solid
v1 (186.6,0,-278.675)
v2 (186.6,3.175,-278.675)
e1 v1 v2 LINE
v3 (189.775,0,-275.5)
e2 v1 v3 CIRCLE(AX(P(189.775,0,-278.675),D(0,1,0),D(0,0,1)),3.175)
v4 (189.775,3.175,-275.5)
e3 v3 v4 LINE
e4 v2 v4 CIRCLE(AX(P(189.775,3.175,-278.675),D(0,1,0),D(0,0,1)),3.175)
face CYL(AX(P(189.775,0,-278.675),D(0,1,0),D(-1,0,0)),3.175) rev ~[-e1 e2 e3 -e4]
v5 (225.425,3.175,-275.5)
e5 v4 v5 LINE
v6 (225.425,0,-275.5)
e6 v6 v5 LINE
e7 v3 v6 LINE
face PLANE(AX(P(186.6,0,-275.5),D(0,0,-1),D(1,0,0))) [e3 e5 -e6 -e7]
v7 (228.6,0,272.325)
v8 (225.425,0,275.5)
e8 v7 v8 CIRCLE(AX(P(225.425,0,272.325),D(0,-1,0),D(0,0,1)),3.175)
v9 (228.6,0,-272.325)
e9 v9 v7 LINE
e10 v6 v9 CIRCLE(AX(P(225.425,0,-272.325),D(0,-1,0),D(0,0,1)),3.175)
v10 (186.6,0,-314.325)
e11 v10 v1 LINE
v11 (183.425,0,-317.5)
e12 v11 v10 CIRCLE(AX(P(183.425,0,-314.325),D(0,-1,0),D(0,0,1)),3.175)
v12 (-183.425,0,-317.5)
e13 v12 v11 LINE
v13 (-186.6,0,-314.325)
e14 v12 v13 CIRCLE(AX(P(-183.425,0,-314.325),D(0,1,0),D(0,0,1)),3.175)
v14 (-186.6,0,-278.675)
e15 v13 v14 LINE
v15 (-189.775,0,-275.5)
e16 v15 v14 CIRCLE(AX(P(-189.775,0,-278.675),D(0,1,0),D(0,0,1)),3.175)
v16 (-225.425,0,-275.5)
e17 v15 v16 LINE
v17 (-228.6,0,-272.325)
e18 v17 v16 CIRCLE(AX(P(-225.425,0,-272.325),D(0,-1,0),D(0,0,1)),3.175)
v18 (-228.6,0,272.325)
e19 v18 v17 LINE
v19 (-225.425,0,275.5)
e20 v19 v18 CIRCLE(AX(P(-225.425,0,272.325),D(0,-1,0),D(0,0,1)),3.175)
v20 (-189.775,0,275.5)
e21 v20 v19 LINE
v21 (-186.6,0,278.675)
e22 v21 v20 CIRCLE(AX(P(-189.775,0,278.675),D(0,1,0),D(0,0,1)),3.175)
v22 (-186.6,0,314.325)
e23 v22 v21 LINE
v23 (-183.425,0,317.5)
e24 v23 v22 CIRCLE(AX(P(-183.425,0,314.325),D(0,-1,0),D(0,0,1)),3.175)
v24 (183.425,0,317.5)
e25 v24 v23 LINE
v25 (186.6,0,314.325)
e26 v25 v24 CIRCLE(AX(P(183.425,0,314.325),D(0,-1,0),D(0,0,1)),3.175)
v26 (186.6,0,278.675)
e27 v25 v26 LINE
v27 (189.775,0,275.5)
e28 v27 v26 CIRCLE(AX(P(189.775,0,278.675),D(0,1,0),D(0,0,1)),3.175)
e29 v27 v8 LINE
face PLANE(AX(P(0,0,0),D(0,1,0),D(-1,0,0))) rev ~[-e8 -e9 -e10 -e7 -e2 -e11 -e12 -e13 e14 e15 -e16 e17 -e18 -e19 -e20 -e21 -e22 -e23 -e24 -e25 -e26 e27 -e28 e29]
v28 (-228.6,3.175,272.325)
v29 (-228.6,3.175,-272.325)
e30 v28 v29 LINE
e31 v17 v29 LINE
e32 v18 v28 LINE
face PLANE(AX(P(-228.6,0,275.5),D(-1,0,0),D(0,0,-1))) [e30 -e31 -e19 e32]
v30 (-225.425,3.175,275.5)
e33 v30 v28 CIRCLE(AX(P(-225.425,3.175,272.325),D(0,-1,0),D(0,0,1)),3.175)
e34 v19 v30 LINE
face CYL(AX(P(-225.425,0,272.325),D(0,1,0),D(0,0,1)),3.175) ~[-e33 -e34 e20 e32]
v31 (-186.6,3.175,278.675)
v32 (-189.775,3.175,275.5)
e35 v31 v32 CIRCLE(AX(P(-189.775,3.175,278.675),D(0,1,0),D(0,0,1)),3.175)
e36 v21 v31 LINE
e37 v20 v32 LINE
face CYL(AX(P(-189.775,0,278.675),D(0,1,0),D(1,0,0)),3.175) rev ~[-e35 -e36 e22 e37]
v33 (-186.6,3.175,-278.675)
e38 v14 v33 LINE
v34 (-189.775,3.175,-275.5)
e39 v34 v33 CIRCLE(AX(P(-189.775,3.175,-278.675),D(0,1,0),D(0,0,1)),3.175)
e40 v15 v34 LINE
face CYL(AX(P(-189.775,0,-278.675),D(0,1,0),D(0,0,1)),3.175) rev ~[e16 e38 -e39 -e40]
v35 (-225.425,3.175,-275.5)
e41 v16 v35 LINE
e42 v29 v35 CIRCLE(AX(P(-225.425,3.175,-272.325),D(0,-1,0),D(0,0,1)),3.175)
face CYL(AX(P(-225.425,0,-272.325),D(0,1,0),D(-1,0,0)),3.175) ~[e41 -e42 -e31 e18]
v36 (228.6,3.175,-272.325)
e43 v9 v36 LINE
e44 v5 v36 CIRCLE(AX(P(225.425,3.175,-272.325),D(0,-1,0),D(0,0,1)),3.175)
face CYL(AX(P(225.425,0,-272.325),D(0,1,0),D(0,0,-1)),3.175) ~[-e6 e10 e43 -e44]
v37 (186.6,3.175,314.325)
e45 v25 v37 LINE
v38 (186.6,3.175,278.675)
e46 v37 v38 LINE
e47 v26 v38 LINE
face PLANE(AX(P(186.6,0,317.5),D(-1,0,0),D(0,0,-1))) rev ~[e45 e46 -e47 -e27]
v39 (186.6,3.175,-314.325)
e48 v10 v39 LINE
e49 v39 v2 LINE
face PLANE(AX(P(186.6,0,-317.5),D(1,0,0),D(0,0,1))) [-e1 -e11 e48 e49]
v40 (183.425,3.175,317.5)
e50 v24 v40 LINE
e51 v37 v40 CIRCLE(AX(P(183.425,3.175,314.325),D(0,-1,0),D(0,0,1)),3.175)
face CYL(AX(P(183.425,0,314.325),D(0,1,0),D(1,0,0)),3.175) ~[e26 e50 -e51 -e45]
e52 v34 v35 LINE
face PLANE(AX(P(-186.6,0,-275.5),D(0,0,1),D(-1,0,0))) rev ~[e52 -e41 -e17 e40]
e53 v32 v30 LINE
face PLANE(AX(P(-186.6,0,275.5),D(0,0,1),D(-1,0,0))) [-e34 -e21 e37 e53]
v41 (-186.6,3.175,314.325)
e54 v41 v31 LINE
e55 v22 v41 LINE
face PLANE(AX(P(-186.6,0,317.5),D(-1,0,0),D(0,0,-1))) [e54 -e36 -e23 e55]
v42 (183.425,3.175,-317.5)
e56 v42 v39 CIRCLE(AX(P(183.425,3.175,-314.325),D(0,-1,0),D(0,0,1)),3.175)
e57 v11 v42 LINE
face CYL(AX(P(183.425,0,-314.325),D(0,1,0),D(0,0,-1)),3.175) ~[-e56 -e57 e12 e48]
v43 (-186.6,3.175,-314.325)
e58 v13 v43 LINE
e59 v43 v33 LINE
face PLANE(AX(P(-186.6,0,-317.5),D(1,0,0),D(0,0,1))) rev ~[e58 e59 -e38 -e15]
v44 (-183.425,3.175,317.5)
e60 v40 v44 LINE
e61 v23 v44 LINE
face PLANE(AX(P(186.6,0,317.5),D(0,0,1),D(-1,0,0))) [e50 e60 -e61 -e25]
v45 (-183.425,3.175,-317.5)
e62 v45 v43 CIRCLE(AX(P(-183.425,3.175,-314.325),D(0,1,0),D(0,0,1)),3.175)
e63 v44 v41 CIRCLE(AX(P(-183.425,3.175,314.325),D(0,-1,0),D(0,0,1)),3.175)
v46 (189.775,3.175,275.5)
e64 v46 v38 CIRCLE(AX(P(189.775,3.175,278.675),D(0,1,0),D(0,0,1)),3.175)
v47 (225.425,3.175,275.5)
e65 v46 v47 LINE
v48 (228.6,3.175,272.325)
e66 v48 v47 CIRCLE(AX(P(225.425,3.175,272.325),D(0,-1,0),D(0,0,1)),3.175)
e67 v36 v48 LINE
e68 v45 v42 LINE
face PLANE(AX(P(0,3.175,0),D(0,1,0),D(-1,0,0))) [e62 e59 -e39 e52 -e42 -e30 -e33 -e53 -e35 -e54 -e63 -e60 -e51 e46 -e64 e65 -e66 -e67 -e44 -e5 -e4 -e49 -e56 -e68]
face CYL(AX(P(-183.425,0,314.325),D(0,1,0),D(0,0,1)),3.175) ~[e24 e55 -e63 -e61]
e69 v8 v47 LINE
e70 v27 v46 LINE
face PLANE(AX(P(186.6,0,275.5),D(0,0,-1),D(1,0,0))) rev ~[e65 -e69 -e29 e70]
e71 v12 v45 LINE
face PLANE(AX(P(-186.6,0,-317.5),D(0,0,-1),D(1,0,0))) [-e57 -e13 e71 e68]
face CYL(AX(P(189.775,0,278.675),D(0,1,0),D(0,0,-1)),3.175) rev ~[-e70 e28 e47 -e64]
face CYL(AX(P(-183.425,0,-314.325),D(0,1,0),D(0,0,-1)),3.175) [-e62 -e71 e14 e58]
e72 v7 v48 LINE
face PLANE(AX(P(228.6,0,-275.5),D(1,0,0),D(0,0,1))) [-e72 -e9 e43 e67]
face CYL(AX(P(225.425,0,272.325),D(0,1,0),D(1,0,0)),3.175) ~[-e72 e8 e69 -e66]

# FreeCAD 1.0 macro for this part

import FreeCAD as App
import Part
import Sketcher
from FreeCAD import Vector


def edges_at(feature, points):
    """Names of the edges that pass closest to the given points."""
    edges = feature.Shape.Edges
    near = lambda p: min(range(len(edges)), key=lambda i: edges[i].distToShape(Part.Vertex(*p))[0])
    return sorted({f"Edge{near(p) + 1}" for p in points})

doc = App.newDocument("Part")
body = doc.addObject("PartDesign::Body", "Body")

sketch1 = doc.addObject("Sketcher::SketchObject", "Sketch")
body.addObject(sketch1)
sketch1.AttachmentSupport = (doc.XZ_Plane, [""])
sketch1.MapMode = "FlatFace"
sketch1.addGeometry([
    Part.LineSegment(Vector(186.6, -317.5, 0), Vector(-186.6, -317.5, 0)),
    Part.LineSegment(Vector(-186.6, -317.5, 0), Vector(-186.6, -275.5, 0)),
    Part.LineSegment(Vector(-186.6, -275.5, 0), Vector(-228.6, -275.5, 0)),
    Part.LineSegment(Vector(-228.6, -275.5, 0), Vector(-228.6, 275.5, 0)),
    Part.LineSegment(Vector(-228.6, 275.5, 0), Vector(-186.6, 275.5, 0)),
    Part.LineSegment(Vector(-186.6, 275.5, 0), Vector(-186.6, 317.5, 0)),
    Part.LineSegment(Vector(-186.6, 317.5, 0), Vector(186.6, 317.5, 0)),
    Part.LineSegment(Vector(186.6, 317.5, 0), Vector(186.6, 275.5, 0)),
    Part.LineSegment(Vector(186.6, 275.5, 0), Vector(228.6, 275.5, 0)),
    Part.LineSegment(Vector(228.6, 275.5, 0), Vector(228.6, -275.5, 0)),
    Part.LineSegment(Vector(228.6, -275.5, 0), Vector(186.6, -275.5, 0)),
    Part.LineSegment(Vector(186.6, -275.5, 0), Vector(186.6, -317.5, 0)),
], False)
sketch1.addConstraint([
    Sketcher.Constraint("Coincident", 0, 2, 1, 1),
    Sketcher.Constraint("Coincident", 1, 2, 2, 1),
    Sketcher.Constraint("Coincident", 2, 2, 3, 1),
    Sketcher.Constraint("Coincident", 3, 2, 4, 1),
    Sketcher.Constraint("Coincident", 4, 2, 5, 1),
    Sketcher.Constraint("Coincident", 5, 2, 6, 1),
    Sketcher.Constraint("Coincident", 6, 2, 7, 1),
    Sketcher.Constraint("Coincident", 7, 2, 8, 1),
    Sketcher.Constraint("Coincident", 8, 2, 9, 1),
    Sketcher.Constraint("Coincident", 9, 2, 10, 1),
    Sketcher.Constraint("Coincident", 10, 2, 11, 1),
    Sketcher.Constraint("Coincident", 11, 2, 0, 1),
    Sketcher.Constraint("Horizontal", 0),
    Sketcher.Constraint("Vertical", 1),
    Sketcher.Constraint("Horizontal", 2),
    Sketcher.Constraint("Vertical", 3),
    Sketcher.Constraint("Horizontal", 4),
    Sketcher.Constraint("Vertical", 5),
    Sketcher.Constraint("Horizontal", 6),
    Sketcher.Constraint("Vertical", 7),
    Sketcher.Constraint("Horizontal", 8),
    Sketcher.Constraint("Vertical", 9),
    Sketcher.Constraint("Horizontal", 10),
    Sketcher.Constraint("Vertical", 11),
    Sketcher.Constraint("Symmetric", 0, 2, 6, 2, -1, 1),
    Sketcher.Constraint("Symmetric", 2, 2, 8, 2, -1, 1),
    Sketcher.Constraint("Symmetric", 4, 2, 10, 2, -1, 1),
    Sketcher.Constraint("Symmetric", 4, 2, 7, 2, -2),
    Sketcher.Constraint("Equal", 10, 1),
    Sketcher.Constraint("DistanceX", 2, 2, 2, 1, 42.0),
    Sketcher.Constraint("DistanceY", 0, 2, 5, 2, 635.0),
    Sketcher.Constraint("DistanceX", 2, 2, -1, 1, 228.6),
])
pad1 = doc.addObject("PartDesign::Pad", "Pad")
body.addObject(pad1)
pad1.Profile = sketch1
pad1.Length = 3.175
pad1.Reversed = True
doc.recompute()

fillet = doc.addObject("PartDesign::Fillet", "Fillet")
body.addObject(fillet)
fillet.Base = (pad1, edges_at(pad1, [
    (186.6, 1.587, -317.5),
    (186.6, 1.587, -275.5),
    (228.6, 1.587, -275.5),
    (-186.6, 1.587, -317.5),
    (-186.6, 1.587, -275.5),
    (-228.6, 1.587, -275.5),
    (-228.6, 1.587, 275.5),
    (-186.6, 1.587, 275.5),
    (-186.6, 1.587, 317.5),
    (186.6, 1.587, 317.5),
    (186.6, 1.587, 275.5),
    (228.6, 1.587, 275.5),
]))
fillet.Radius = 3.175

doc.recompute()
